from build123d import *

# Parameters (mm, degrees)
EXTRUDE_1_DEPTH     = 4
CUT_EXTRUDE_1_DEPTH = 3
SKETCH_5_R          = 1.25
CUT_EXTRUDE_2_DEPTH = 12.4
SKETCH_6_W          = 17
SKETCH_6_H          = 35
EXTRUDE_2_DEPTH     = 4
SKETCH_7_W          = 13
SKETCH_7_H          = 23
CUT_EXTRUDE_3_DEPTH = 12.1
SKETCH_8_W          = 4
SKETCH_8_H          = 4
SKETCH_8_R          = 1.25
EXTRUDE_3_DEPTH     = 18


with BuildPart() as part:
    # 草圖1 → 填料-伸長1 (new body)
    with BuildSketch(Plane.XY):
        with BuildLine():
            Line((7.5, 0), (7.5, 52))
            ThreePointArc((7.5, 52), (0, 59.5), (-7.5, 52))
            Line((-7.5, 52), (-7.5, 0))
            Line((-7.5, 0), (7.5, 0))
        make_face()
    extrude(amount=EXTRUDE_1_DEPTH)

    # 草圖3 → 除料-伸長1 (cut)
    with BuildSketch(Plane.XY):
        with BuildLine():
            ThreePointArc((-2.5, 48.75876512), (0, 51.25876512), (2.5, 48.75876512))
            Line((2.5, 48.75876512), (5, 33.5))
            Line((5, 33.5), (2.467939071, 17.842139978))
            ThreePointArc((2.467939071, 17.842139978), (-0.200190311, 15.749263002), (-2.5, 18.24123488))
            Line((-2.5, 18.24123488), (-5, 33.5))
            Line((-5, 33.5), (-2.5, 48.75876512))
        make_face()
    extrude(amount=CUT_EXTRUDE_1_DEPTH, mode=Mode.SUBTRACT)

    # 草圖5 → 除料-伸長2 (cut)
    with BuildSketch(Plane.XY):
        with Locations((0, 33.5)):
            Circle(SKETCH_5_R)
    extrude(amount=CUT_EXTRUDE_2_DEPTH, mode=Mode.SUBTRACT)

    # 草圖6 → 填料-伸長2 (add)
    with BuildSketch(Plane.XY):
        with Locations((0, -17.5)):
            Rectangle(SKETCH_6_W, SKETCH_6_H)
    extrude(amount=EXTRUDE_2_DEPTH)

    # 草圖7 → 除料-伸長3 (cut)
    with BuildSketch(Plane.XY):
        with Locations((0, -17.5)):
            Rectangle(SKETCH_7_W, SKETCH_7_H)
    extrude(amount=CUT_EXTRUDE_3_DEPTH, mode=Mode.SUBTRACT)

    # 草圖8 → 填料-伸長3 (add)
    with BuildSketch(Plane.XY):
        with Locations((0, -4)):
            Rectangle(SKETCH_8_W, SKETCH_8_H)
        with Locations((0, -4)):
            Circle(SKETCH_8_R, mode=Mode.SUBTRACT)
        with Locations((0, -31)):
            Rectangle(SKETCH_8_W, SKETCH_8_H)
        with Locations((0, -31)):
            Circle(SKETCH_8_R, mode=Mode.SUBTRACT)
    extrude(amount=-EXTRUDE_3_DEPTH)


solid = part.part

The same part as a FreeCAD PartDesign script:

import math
import FreeCAD as App
import Part
import Sketcher
Q = App.Units.Quantity


def add_polygon(sketch, points):
    """Adds a closed chain of lines whose ends are joined by coincident constraints."""
    first, n = sketch.GeometryCount, len(points)
    for a, b in zip(points, points[1:] + points[:1]):
        sketch.addGeometry(Part.LineSegment(App.Vector(*a, 0), App.Vector(*b, 0)), False)
    for i in range(n):
        sketch.addConstraint(Sketcher.Constraint("Coincident", first + i, 2, first + (i + 1) % n, 1))

doc = App.newDocument("Part")
body = doc.addObject("PartDesign::Body", "Body")

sketch1 = body.newObject("Sketcher::SketchObject", "Sketch")
sketch1.AttachmentSupport = (doc.getObject("XY_Plane"), [""])
sketch1.MapMode = "FlatFace"
sketch1.addGeometry([
    Part.LineSegment(App.Vector(8, 0, 0), App.Vector(8, 52, 0)),
    Part.ArcOfCircle(Part.Circle(App.Vector(0, 52, 0), App.Vector(0, 0, 1), 8), math.radians(0), math.radians(180)),
    Part.LineSegment(App.Vector(-8, 52, 0), App.Vector(-8, 0, 0)),
    Part.LineSegment(App.Vector(-8, 0, 0), App.Vector(8, 0, 0)),
], False)
sketch1.addConstraint([
    Sketcher.Constraint("Tangent", 0, 2, 1, 1),
    Sketcher.Constraint("Tangent", 1, 2, 2, 1),
    Sketcher.Constraint("Coincident", 2, 2, 3, 1),
    Sketcher.Constraint("Coincident", 3, 2, 0, 1),
    Sketcher.Constraint("Vertical", 0),
    Sketcher.Constraint("Vertical", 2),
    Sketcher.Constraint("Horizontal", 3),
    Sketcher.Constraint("Symmetric", 2, 2, 3, 2, -1, 1),
    Sketcher.Constraint("Radius", 1, Q("7.5 mm")),
    Sketcher.Constraint("DistanceY", 0, 1, 0, 2, Q("52 mm")),
])
pad1 = body.newObject("PartDesign::Pad", "Pad")
pad1.Profile = sketch1
pad1.Length = 4

sketch2 = body.newObject("Sketcher::SketchObject", "Sketch001")
sketch2.AttachmentSupport = (doc.getObject("XY_Plane"), [""])
sketch2.MapMode = "FlatFace"
sketch2.addGeometry([
    Part.ArcOfCircle(Part.Circle(App.Vector(0, 48.8, 0), App.Vector(0, 0, 1), 2.5), math.radians(0), math.radians(180)),
    Part.LineSegment(App.Vector(-2.5, 48.8, 0), App.Vector(-5, 33.5, 0)),
    Part.LineSegment(App.Vector(-5, 33.5, 0), App.Vector(-2.5, 18.2, 0)),
    Part.ArcOfCircle(Part.Circle(App.Vector(0, 18.2, 0), App.Vector(0, 0, 1), 2.5), math.radians(180), math.radians(351)),
    Part.LineSegment(App.Vector(2.5, 17.8, 0), App.Vector(5, 33.5, 0)),
    Part.LineSegment(App.Vector(5, 33.5, 0), App.Vector(2.5, 48.8, 0)),
], False)
sketch2.addConstraint([
    Sketcher.Constraint("Coincident", 0, 2, 1, 1),
    Sketcher.Constraint("Coincident", 1, 2, 2, 1),
    Sketcher.Constraint("Coincident", 2, 2, 3, 1),
    Sketcher.Constraint("Tangent", 3, 2, 4, 1),
    Sketcher.Constraint("Coincident", 4, 2, 5, 1),
    Sketcher.Constraint("Coincident", 5, 2, 0, 1),
    Sketcher.Constraint("Equal", 0, 3),
    Sketcher.Constraint("Symmetric", 1, 2, 4, 2, -2),
    Sketcher.Constraint("Symmetric", 0, 2, 5, 2, -2),
    Sketcher.Constraint("PointOnObject", 3, 3, -2),
    Sketcher.Constraint("Parallel", 2, 5),
    Sketcher.Constraint("Horizontal", 3, 3, 2, 2),
    Sketcher.Constraint("Radius", 0, Q("2.5 mm")),
    Sketcher.Constraint("DistanceX", 1, 2, -1, 1, Q("5 mm")),
    Sketcher.Constraint("DistanceY", -1, 1, 1, 2, Q("33.5 mm")),
    Sketcher.Constraint("Distance", 1, Q("15.462209 mm")),
    Sketcher.Constraint("DistanceY", 3, 3, 0, 3, Q("30.51753 mm")),
])
pocket1 = body.newObject("PartDesign::Pocket", "Pocket")
pocket1.Profile = sketch2
pocket1.Length = 3
pocket1.Reversed = True

sketch3 = body.newObject("Sketcher::SketchObject", "Sketch002")
sketch3.AttachmentSupport = (doc.getObject("XY_Plane"), [""])
sketch3.MapMode = "FlatFace"
sketch3.addGeometry(Part.Circle(App.Vector(0, 33.5, 0), App.Vector(0, 0, 1), 1.2), False)
sketch3.addConstraint([
    Sketcher.Constraint("PointOnObject", 0, 3, -2),
    Sketcher.Constraint("Diameter", 0, Q("2.5 mm")),
    Sketcher.Constraint("DistanceY", -1, 1, 0, 3, Q("33.5 mm")),
])
pocket2 = body.newObject("PartDesign::Pocket", "Pocket001")
pocket2.Profile = sketch3
pocket2.Length = 12.4
pocket2.Reversed = True

sketch4 = body.newObject("Sketcher::SketchObject", "Sketch003")
sketch4.AttachmentSupport = (doc.getObject("XY_Plane"), [""])
sketch4.MapMode = "FlatFace"
add_polygon(sketch4, [(-8, 0), (-8, -35), (8, -35), (8, 0)])
sketch4.addConstraint([
    Sketcher.Constraint("Vertical", 0),
    Sketcher.Constraint("Horizontal", 1),
    Sketcher.Constraint("Vertical", 2),
    Sketcher.Constraint("Horizontal", 3),
    Sketcher.Constraint("Symmetric", 2, 2, 3, 2, -1, 1),
    Sketcher.Constraint("DistanceX", 1, 1, 1, 2, Q("17 mm")),
    Sketcher.Constraint("DistanceY", 0, 2, 0, 1, Q("35 mm")),
])
pad2 = body.newObject("PartDesign::Pad", "Pad001")
pad2.Profile = sketch4
pad2.Length = 4

sketch5 = body.newObject("Sketcher::SketchObject", "Sketch004")
sketch5.AttachmentSupport = (doc.getObject("XY_Plane"), [""])
sketch5.MapMode = "FlatFace"
add_polygon(sketch5, [(-6, -6), (-6, -29), (6, -29), (6, -6)])
sketch5.addConstraint([
    Sketcher.Constraint("Vertical", 0),
    Sketcher.Constraint("Horizontal", 1),
    Sketcher.Constraint("Vertical", 2),
    Sketcher.Constraint("Horizontal", 3),
    Sketcher.Constraint("DistanceX", 1, 1, 1, 2, Q("13 mm")),
    Sketcher.Constraint("DistanceY", 0, 2, 0, 1, Q("23 mm")),
    Sketcher.Constraint("DistanceY", 0, 2, -1, 1, Q("29 mm")),
    Sketcher.Constraint("DistanceX", 0, 2, -1, 1, Q("6.5 mm")),
])
pocket3 = body.newObject("PartDesign::Pocket", "Pocket002")
pocket3.Profile = sketch5
pocket3.Length = 12.1
pocket3.Reversed = True

sketch6 = body.newObject("Sketcher::SketchObject", "Sketch005")
sketch6.AttachmentSupport = (doc.getObject("XY_Plane"), [""])
sketch6.MapMode = "FlatFace"
add_polygon(sketch6, [(-2, -2), (-2, -6), (2, -6), (2, -2)])
sketch6.addGeometry(Part.Circle(App.Vector(0, -4, 0), App.Vector(0, 0, 1), 1.2), False)
add_polygon(sketch6, [(-2, -29), (-2, -33), (2, -33), (2, -29)])
sketch6.addGeometry(Part.Circle(App.Vector(0, -31, 0), App.Vector(0, 0, 1), 1.2), False)
sketch6.addConstraint([
    Sketcher.Constraint("Vertical", 0),
    Sketcher.Constraint("Horizontal", 1),
    Sketcher.Constraint("Vertical", 2),
    Sketcher.Constraint("Horizontal", 3),
    Sketcher.Constraint("Vertical", 5),
    Sketcher.Constraint("Horizontal", 6),
    Sketcher.Constraint("Vertical", 7),
    Sketcher.Constraint("Horizontal", 8),
    Sketcher.Constraint("Equal", 4, 9),
    Sketcher.Constraint("PointOnObject", 4, 3, -2),
    Sketcher.Constraint("PointOnObject", 9, 3, -2),
    Sketcher.Constraint("Vertical", 3, 2, 5, 2),
    Sketcher.Constraint("Vertical", 2, 2, 6, 2),
    Sketcher.Constraint("Equal", 8, 0),
    Sketcher.Constraint("Equal", 2, 5),
    Sketcher.Constraint("Diameter", 4, Q("2.5 mm")),
    Sketcher.Constraint("DistanceX", 1, 1, 1, 2, Q("4 mm")),
    Sketcher.Constraint("DistanceY", 4, 3, -1, 1, Q("4 mm")),
    Sketcher.Constraint("DistanceY", 9, 3, -1, 1, Q("31 mm")),
    Sketcher.Constraint("DistanceX", 0, 2, -1, 1, Q("2 mm")),
    Sketcher.Constraint("DistanceY", 0, 2, -1, 1, Q("6 mm")),
    Sketcher.Constraint("DistanceY", 5, 2, -1, 1, Q("33 mm")),
])
pad3 = body.newObject("PartDesign::Pad", "Pad002")
pad3.Profile = sketch6
pad3.Length = 18
pad3.Reversed = True

doc.recompute()
